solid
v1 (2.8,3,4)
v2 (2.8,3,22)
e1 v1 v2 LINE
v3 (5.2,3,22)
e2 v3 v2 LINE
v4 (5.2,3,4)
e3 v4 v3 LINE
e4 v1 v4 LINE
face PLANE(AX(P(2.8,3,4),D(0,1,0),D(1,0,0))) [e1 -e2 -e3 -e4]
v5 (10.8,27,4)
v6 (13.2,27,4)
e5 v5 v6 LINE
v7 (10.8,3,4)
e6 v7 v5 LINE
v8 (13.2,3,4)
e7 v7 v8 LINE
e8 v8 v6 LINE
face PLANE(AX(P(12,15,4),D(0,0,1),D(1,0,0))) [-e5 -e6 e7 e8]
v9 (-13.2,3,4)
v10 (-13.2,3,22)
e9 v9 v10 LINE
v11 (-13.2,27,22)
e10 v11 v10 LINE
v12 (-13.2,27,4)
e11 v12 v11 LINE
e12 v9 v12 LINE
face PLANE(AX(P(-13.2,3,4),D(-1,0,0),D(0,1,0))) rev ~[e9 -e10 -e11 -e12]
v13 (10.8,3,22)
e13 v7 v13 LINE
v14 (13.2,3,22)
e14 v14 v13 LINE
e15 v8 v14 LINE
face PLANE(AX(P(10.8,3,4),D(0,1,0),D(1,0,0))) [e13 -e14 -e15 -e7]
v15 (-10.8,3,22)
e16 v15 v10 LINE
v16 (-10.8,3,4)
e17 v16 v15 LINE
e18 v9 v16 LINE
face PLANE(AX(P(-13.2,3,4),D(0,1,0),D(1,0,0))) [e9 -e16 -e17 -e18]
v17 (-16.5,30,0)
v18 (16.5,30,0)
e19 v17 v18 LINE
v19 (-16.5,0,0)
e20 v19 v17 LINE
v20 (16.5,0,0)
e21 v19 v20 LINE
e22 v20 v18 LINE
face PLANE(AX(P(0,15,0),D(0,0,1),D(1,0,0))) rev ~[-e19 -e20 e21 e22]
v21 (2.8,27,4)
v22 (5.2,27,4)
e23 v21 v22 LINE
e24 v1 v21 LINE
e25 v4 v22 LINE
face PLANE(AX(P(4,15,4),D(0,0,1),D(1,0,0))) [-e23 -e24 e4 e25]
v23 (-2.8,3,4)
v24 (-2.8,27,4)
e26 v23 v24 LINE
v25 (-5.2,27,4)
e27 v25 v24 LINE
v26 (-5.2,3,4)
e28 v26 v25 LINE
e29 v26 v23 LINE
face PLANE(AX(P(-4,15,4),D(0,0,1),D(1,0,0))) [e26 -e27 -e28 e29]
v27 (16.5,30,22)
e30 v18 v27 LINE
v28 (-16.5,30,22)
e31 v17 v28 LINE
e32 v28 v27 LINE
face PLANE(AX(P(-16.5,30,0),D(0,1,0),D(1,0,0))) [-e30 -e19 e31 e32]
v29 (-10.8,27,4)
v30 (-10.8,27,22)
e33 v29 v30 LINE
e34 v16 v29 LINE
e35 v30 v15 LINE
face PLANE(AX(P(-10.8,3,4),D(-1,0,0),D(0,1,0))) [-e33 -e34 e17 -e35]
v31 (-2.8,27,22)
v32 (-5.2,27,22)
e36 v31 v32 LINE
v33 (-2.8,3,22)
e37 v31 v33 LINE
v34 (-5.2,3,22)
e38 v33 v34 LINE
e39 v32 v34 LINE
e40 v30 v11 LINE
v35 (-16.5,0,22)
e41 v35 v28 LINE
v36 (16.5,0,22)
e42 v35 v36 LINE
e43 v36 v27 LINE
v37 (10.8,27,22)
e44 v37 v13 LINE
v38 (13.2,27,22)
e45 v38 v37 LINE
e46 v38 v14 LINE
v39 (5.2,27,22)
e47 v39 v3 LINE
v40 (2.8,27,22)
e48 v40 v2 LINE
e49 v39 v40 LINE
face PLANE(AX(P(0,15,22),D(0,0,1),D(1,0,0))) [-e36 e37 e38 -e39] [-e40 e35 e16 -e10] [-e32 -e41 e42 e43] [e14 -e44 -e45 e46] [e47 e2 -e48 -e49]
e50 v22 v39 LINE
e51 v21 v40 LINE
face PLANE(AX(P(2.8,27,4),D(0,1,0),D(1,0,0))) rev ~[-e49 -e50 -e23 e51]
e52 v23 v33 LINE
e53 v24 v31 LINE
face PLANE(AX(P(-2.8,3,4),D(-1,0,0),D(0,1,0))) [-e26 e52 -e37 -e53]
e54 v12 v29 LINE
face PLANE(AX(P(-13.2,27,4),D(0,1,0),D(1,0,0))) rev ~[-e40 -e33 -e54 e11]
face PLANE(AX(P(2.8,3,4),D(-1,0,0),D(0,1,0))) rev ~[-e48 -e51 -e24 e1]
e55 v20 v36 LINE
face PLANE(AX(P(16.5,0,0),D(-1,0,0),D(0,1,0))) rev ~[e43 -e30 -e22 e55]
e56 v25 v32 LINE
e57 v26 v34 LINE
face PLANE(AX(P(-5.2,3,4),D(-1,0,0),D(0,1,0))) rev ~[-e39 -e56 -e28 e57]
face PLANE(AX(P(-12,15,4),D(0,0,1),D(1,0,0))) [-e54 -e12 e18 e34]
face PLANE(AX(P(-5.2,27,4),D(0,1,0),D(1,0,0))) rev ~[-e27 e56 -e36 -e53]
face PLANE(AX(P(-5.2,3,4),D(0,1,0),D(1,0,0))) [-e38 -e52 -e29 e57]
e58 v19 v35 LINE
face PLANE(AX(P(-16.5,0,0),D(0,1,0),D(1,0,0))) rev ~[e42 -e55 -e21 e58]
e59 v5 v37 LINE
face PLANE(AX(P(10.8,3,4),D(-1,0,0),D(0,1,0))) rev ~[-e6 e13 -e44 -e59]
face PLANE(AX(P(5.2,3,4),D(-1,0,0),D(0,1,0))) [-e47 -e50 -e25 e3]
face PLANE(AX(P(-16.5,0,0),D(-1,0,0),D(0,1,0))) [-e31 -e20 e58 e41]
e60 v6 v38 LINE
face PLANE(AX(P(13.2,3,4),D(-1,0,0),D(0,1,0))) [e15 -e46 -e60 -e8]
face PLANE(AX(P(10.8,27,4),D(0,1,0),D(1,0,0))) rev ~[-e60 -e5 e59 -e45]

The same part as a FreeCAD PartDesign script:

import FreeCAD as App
import Part
import Sketcher
from FreeCAD import Vector


def add_polygon(sketch, points):
    """Adds a closed chain of lines whose ends are joined by coincident constraints."""
    first, n = sketch.GeometryCount, len(points)
    for a, b in zip(points, points[1:] + points[:1]):
        sketch.addGeometry(Part.LineSegment(App.Vector(*a, 0), App.Vector(*b, 0)), False)
    for i in range(n):
        sketch.addConstraint(Sketcher.Constraint("Coincident", first + i, 2, first + (i + 1) % n, 1))

doc = App.newDocument("Part")
body = doc.addObject("PartDesign::Body", "Body")

sketch1 = body.newObject("Sketcher::SketchObject", "Sketch")
sketch1.AttachmentSupport = (doc.getObject("XY_Plane"), [""])
sketch1.MapMode = "FlatFace"
add_polygon(sketch1, [(8, -4), (8, -28), (10.4, -28), (10.4, -4)])
sketch1.addConstraint(Sketcher.Constraint("Vertical", 0))
sketch1.addConstraint(Sketcher.Constraint("Horizontal", 1))
sketch1.addConstraint(Sketcher.Constraint("Vertical", 2))
sketch1.addConstraint(Sketcher.Constraint("Horizontal", 3))
sketch1.addConstraint(Sketcher.Constraint("DistanceY", 0, 2, 0, 1, 24.0))
sketch1.addConstraint(Sketcher.Constraint("DistanceX", 1, 1, 1, 2, 2.4))
sketch1.addConstraint(Sketcher.Constraint("DistanceX", -1, 1, 0, 2, 8.0))
sketch1.addConstraint(Sketcher.Constraint("DistanceY", 0, 2, -1, 1, 28.0))
pad1 = body.newObject("PartDesign::Pad", "Pad")
pad1.Profile = sketch1
pad1.Length = 20
body2 = doc.addObject("PartDesign::Body", "Body001")

sketch2 = body2.newObject("Sketcher::SketchObject", "Sketch001")
sketch2.AttachmentSupport = (doc.getObject("XY_Plane001"), [""])
sketch2.MapMode = "FlatFace"
add_polygon(sketch2, [(16, -4), (16, -28), (18.4, -28), (18.4, -4)])
sketch2.addConstraint(Sketcher.Constraint("Vertical", 0))
sketch2.addConstraint(Sketcher.Constraint("Horizontal", 1))
sketch2.addConstraint(Sketcher.Constraint("Vertical", 2))
sketch2.addConstraint(Sketcher.Constraint("Horizontal", 3))
sketch2.addConstraint(Sketcher.Constraint("DistanceY", 0, 2, 0, 1, 24.0))
sketch2.addConstraint(Sketcher.Constraint("DistanceX", 1, 1, 1, 2, 2.4))
sketch2.addConstraint(Sketcher.Constraint("DistanceX", -1, 1, 0, 2, 16.0))
sketch2.addConstraint(Sketcher.Constraint("DistanceY", 0, 2, -1, 1, 28.0))
pad2 = body2.newObject("PartDesign::Pad", "Pad001")
pad2.Profile = sketch2
pad2.Length = 20
body3 = doc.addObject("PartDesign::Body", "Body002")

sketch3 = body3.newObject("Sketcher::SketchObject", "Sketch002")
sketch3.AttachmentSupport = (doc.getObject("XY_Plane002"), [""])
sketch3.MapMode = "FlatFace"
add_polygon(sketch3, [(24, -4), (24, -28), (26.4, -28), (26.4, -4)])
sketch3.addConstraint(Sketcher.Constraint("Vertical", 0))
sketch3.addConstraint(Sketcher.Constraint("Horizontal", 1))
sketch3.addConstraint(Sketcher.Constraint("Vertical", 2))
sketch3.addConstraint(Sketcher.Constraint("Horizontal", 3))
sketch3.addConstraint(Sketcher.Constraint("DistanceY", 0, 2, 0, 1, 24.0))
sketch3.addConstraint(Sketcher.Constraint("DistanceX", 1, 1, 1, 2, 2.4))
sketch3.addConstraint(Sketcher.Constraint("DistanceX", -1, 1, 0, 2, 24.0))
sketch3.addConstraint(Sketcher.Constraint("DistanceY", 0, 2, -1, 1, 28.0))
pad3 = body3.newObject("PartDesign::Pad", "Pad002")
pad3.Profile = sketch3
pad3.Length = 20
body4 = doc.addObject("PartDesign::Body", "Body003")
body4.AllowCompound = True

sketch4 = body4.newObject("Sketcher::SketchObject", "Sketch003")
sketch4.AttachmentSupport = (doc.getObject("XY_Plane003"), [""])
sketch4.MapMode = "FlatFace"
add_polygon(sketch4, [(0, -4), (0, -28), (2.4, -28), (2.4, -4)])
sketch4.addConstraint(Sketcher.Constraint("Vertical", 0))
sketch4.addConstraint(Sketcher.Constraint("Horizontal", 1))
sketch4.addConstraint(Sketcher.Constraint("Vertical", 2))
sketch4.addConstraint(Sketcher.Constraint("Horizontal", 3))
sketch4.addConstraint(Sketcher.Constraint("PointOnObject", 0, 2, -2))
sketch4.addConstraint(Sketcher.Constraint("DistanceY", 0, 2, 0, 1, 24.0))
sketch4.addConstraint(Sketcher.Constraint("DistanceX", 1, 1, 1, 2, 2.4))
sketch4.addConstraint(Sketcher.Constraint("DistanceY", 0, 2, -1, 1, 28.0))
pad4 = body4.newObject("PartDesign::Pad", "Pad003")
pad4.Profile = sketch4
pad4.Length = 20
doc.recompute()

boolean = body4.newObject("PartDesign::Boolean", "Boolean")
boolean.Type = "Fuse"
boolean.addObjects([body])
doc.recompute()

boolean2 = body4.newObject("PartDesign::Boolean", "Boolean001")
boolean2.Type = "Fuse"
boolean2.addObjects([body2])
doc.recompute()

boolean3 = body4.newObject("PartDesign::Boolean", "Boolean002")
boolean3.Type = "Fuse"
boolean3.addObjects([body3])
body5 = doc.addObject("PartDesign::Body", "Body004")
body5.AllowCompound = True
doc.recompute()

body4.Placement = App.Placement(Vector(-13.2, 31, 4), App.Rotation(Vector(0, 0, 1), 0))
boolean4 = body5.newObject("PartDesign::Boolean", "Boolean003")
boolean4.Type = "Fuse"
boolean4.addObjects([body4])
body6 = doc.addObject("PartDesign::Body", "Body005")

sketch5 = body6.newObject("Sketcher::SketchObject", "Sketch004")
sketch5.AttachmentSupport = (doc.getObject("XY_Plane005"), [""])
sketch5.MapMode = "FlatFace"
add_polygon(sketch5, [(-16.5, 30), (-16.5, 0), (16.5, 0), (16.5, 30)])
sketch5.addConstraint(Sketcher.Constraint("Vertical", 0))
sketch5.addConstraint(Sketcher.Constraint("Horizontal", 1))
sketch5.addConstraint(Sketcher.Constraint("Vertical", 2))
sketch5.addConstraint(Sketcher.Constraint("Horizontal", 3))
sketch5.addConstraint(Sketcher.Constraint("Symmetric", 0, 2, 1, 2, -1, 1))
sketch5.addConstraint(Sketcher.Constraint("DistanceX", 1, 1, 1, 2, 33.0))
sketch5.addConstraint(Sketcher.Constraint("DistanceY", 0, 2, 0, 1, 30.0))
pad5 = body6.newObject("PartDesign::Pad", "Pad004")
pad5.Profile = sketch5
pad5.Length = 22
doc.recompute()

boolean5 = body6.newObject("PartDesign::Boolean", "Boolean004")
boolean5.Type = "Cut"
boolean5.addObjects([body5])

doc.recompute()
